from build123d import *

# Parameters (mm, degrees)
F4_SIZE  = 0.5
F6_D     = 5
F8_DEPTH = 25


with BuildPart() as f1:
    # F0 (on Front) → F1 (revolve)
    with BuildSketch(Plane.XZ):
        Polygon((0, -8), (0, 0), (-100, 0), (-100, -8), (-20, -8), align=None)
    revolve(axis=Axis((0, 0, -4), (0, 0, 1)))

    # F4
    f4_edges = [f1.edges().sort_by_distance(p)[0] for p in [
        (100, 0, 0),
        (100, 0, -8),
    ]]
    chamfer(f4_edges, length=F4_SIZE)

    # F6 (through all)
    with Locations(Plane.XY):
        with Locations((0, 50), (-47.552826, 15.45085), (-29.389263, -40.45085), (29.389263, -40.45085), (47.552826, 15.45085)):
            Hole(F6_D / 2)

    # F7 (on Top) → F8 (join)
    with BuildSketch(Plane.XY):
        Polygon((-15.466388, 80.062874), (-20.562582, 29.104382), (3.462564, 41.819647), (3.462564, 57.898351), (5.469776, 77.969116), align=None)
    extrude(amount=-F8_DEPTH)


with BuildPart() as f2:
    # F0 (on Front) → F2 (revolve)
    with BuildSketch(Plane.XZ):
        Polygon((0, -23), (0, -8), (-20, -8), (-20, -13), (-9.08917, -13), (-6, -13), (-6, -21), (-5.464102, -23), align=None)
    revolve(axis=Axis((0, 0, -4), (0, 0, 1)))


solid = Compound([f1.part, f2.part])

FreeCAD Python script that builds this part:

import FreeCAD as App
import Part
import Sketcher
from FreeCAD import Vector
Q = App.Units.Quantity


def edges_at(feature, points):
    """Names of the edges that pass closest to the given points."""
    edges = feature.Shape.Edges
    near = lambda p: min(range(len(edges)), key=lambda i: edges[i].distToShape(Part.Vertex(*p))[0])
    return sorted({f"Edge{near(p) + 1}" for p in points})

doc = App.newDocument("Part")
body = doc.addObject("PartDesign::Body", "Body")

# Sketch on XZ plane
sketch1 = doc.addObject("Sketcher::SketchObject", "Sketch")
body.addObject(sketch1)
sketch1.AttachmentSupport = (doc.XZ_Plane, [""])
sketch1.MapMode = "FlatFace"
sketch1.addGeometry(Part.LineSegment(Vector(0, -8, 0), Vector(0, 0, 0)), False)
sketch1.addGeometry(Part.LineSegment(Vector(0, 0, 0), Vector(-100, 0, 0)), False)
sketch1.addGeometry(Part.LineSegment(Vector(-100, 0, 0), Vector(-100, -8, 0)), False)
sketch1.addGeometry(Part.LineSegment(Vector(-100, -8, 0), Vector(0, -8, 0)), False)
sketch1.addConstraint(Sketcher.Constraint("Coincident", 0, 2, 1, 1))
sketch1.addConstraint(Sketcher.Constraint("Coincident", 1, 2, 2, 1))
sketch1.addConstraint(Sketcher.Constraint("Coincident", 2, 2, 3, 1))
sketch1.addConstraint(Sketcher.Constraint("Coincident", 3, 2, 0, 1))
sketch1.addConstraint(Sketcher.Constraint("Vertical", 0))
sketch1.addConstraint(Sketcher.Constraint("Horizontal", 1))
sketch1.addConstraint(Sketcher.Constraint("Vertical", 2))
sketch1.addConstraint(Sketcher.Constraint("Horizontal", 3))
sketch1.addConstraint(Sketcher.Constraint("Coincident", 0, 2, -1, 1))
sketch1.addConstraint(Sketcher.Constraint("DistanceX", 1, 2, 1, 1, 100.0))
sketch1.addConstraint(Sketcher.Constraint("DistanceY", 0, 1, 0, 2, 8.0))
revolution = doc.addObject("PartDesign::Revolution", "Revolution")
body.addObject(revolution)
revolution.Profile = sketch1
revolution.ReferenceAxis = (sketch1, ["V_Axis"])
revolution.Angle = 360
doc.recompute()

chamfer = doc.addObject("PartDesign::Chamfer", "Chamfer")
body.addObject(chamfer)
chamfer.Base = (revolution, edges_at(revolution, [(100, 0, 0), (100, 0, -8)]))
chamfer.Size = 0.5

# Sketch on XY plane
sketch2 = doc.addObject("Sketcher::SketchObject", "Sketch001")
body.addObject(sketch2)
sketch2.AttachmentSupport = (doc.XY_Plane, [""])
sketch2.MapMode = "FlatFace"
sketch2.addGeometry(Part.Circle(Vector(0, 50, 0), Vector(0, 0, 1), 2.5), False)
sketch2.addGeometry(Part.Circle(Vector(-47.552826, 15.45085, 0), Vector(0, 0, 1), 2.5), False)
sketch2.addGeometry(Part.Circle(Vector(-29.389263, -40.45085, 0), Vector(0, 0, 1), 2.5), False)
sketch2.addGeometry(Part.Circle(Vector(29.389263, -40.45085, 0), Vector(0, 0, 1), 2.5), False)
sketch2.addGeometry(Part.Circle(Vector(47.552826, 15.45085, 0), Vector(0, 0, 1), 2.5), False)
sketch2.addConstraint(Sketcher.Constraint("Equal", 0, 1))
sketch2.addConstraint(Sketcher.Constraint("Equal", 1, 2))
sketch2.addConstraint(Sketcher.Constraint("Equal", 2, 3))
sketch2.addConstraint(Sketcher.Constraint("Equal", 3, 4))
sketch2.addConstraint(Sketcher.Constraint("Symmetric", 2, 3, 3, 3, -2))
sketch2.addConstraint(Sketcher.Constraint("Symmetric", 1, 3, 4, 3, -2))
sketch2.addConstraint(Sketcher.Constraint("PointOnObject", 0, 3, -2))
sketch2.addConstraint(Sketcher.Constraint("Diameter", 0, 5.0))
sketch2.addConstraint(Sketcher.Constraint("DistanceY", -1, 1, 0, 3, 50.0))
sketch2.addConstraint(Sketcher.Constraint("DistanceY", 2, 3, 1, 3, 55.9017))
sketch2.addConstraint(Sketcher.Constraint("DistanceY", -1, 1, 1, 3, 15.45085))
sketch2.addConstraint(Sketcher.Constraint("DistanceX", 1, 3, 3, 3, 76.942089))
sketch2.addConstraint(Sketcher.Constraint("DistanceX", 1, 3, -1, 1, 47.552826))
doc.recompute()
hole = doc.addObject("PartDesign::Hole", "Hole")
body.addObject(hole)
hole.Profile = sketch2
hole.ThreadType = "None"
hole.Diameter = 5
hole.DepthType = "ThroughAll"

# Sketch on XY plane
sketch3 = doc.addObject("Sketcher::SketchObject", "Sketch002")
body.addObject(sketch3)
sketch3.AttachmentSupport = (doc.XY_Plane, [""])
sketch3.MapMode = "FlatFace"
sketch3.addGeometry(Part.LineSegment(Vector(-15.466388, 80.062874, 0), Vector(-20.562582, 29.104382, 0)), False)
sketch3.addGeometry(Part.LineSegment(Vector(-20.562582, 29.104382, 0), Vector(3.462564, 41.819647, 0)), False)
sketch3.addGeometry(Part.LineSegment(Vector(3.462564, 41.819647, 0), Vector(3.462564, 57.898351, 0)), False)
sketch3.addGeometry(Part.LineSegment(Vector(3.462564, 57.898351, 0), Vector(5.469776, 77.969116, 0)), False)
sketch3.addGeometry(Part.LineSegment(Vector(5.469776, 77.969116, 0), Vector(-15.466388, 80.062874, 0)), False)
sketch3.addConstraint(Sketcher.Constraint("Coincident", 0, 2, 1, 1))
sketch3.addConstraint(Sketcher.Constraint("Coincident", 1, 2, 2, 1))
sketch3.addConstraint(Sketcher.Constraint("Coincident", 2, 2, 3, 1))
sketch3.addConstraint(Sketcher.Constraint("Coincident", 3, 2, 4, 1))
sketch3.addConstraint(Sketcher.Constraint("Coincident", 4, 2, 0, 1))
sketch3.addConstraint(Sketcher.Constraint("Vertical", 2))
sketch3.addConstraint(Sketcher.Constraint("Parallel", 0, 3))
sketch3.addConstraint(Sketcher.Constraint("Perpendicular", 3, 4))
sketch3.addConstraint(Sketcher.Constraint("Distance", 4, 21.040599))
sketch3.addConstraint(Sketcher.Constraint("Distance", 1, 27.18245))
sketch3.addConstraint(Sketcher.Constraint("DistanceY", 2, 1, 2, 2, 16.078704))
sketch3.addConstraint(Sketcher.Constraint("DistanceX", 0, 2, -1, 1, 20.562582))
sketch3.addConstraint(Sketcher.Constraint("DistanceY", -1, 1, 2, 2, 57.898351))
sketch3.addConstraint(Sketcher.Constraint("DistanceY", 0, 2, 2, 2, 28.793969))
sketch3.addConstraint(Sketcher.Constraint("DistanceY", 1, 2, 3, 2, 36.149469))
pad1 = doc.addObject("PartDesign::Pad", "Pad")
body.addObject(pad1)
pad1.Profile = sketch3
pad1.Length = 25
pad1.Reversed = True
body2 = doc.addObject("PartDesign::Body", "Body001")

# Sketch on XZ plane
sketch4 = doc.addObject("Sketcher::SketchObject", "Sketch003")
body2.addObject(sketch4)
sketch4.AttachmentSupport = (doc.getObject("XZ_Plane001"), [""])
sketch4.MapMode = "FlatFace"
sketch4.addGeometry(Part.LineSegment(Vector(0, -23, 0), Vector(0, -8, 0)), False)
sketch4.addGeometry(Part.LineSegment(Vector(0, -8, 0), Vector(-20, -8, 0)), False)
sketch4.addGeometry(Part.LineSegment(Vector(-20, -8, 0), Vector(-20, -13, 0)), False)
sketch4.addGeometry(Part.LineSegment(Vector(-20, -13, 0), Vector(-6, -13, 0)), False)
sketch4.addGeometry(Part.LineSegment(Vector(-6, -13, 0), Vector(-6, -21, 0)), False)
sketch4.addGeometry(Part.LineSegment(Vector(-6, -21, 0), Vector(-5.464102, -23, 0)), False)
sketch4.addGeometry(Part.LineSegment(Vector(-5.464102, -23, 0), Vector(0, -23, 0)), False)
sketch4.addConstraint(Sketcher.Constraint("Coincident", 0, 2, 1, 1))
sketch4.addConstraint(Sketcher.Constraint("Coincident", 1, 2, 2, 1))
sketch4.addConstraint(Sketcher.Constraint("Coincident", 2, 2, 3, 1))
sketch4.addConstraint(Sketcher.Constraint("Coincident", 3, 2, 4, 1))
sketch4.addConstraint(Sketcher.Constraint("Coincident", 4, 2, 5, 1))
sketch4.addConstraint(Sketcher.Constraint("Coincident", 5, 2, 6, 1))
sketch4.addConstraint(Sketcher.Constraint("Coincident", 6, 2, 0, 1))
sketch4.addConstraint(Sketcher.Constraint("Vertical", 0))
sketch4.addConstraint(Sketcher.Constraint("Horizontal", 1))
sketch4.addConstraint(Sketcher.Constraint("Vertical", 2))
sketch4.addConstraint(Sketcher.Constraint("Horizontal", 3))
sketch4.addConstraint(Sketcher.Constraint("Vertical", 4))
sketch4.addConstraint(Sketcher.Constraint("Horizontal", 6))
sketch4.addConstraint(Sketcher.Constraint("PointOnObject", 0, 2, -2))
sketch4.addConstraint(Sketcher.Constraint("DistanceX", 1, 2, 1, 1, 20.0))
sketch4.addConstraint(Sketcher.Constraint("DistanceX", 3, 1, 3, 2, 14.0))
sketch4.addConstraint(Sketcher.Constraint("DistanceY", 0, 1, 0, 2, 15.0))
sketch4.addConstraint(Sketcher.Constraint("DistanceY", 2, 2, 2, 1, 5.0))
sketch4.addConstraint(Sketcher.Constraint("DistanceY", 4, 2, 4, 1, 8.0))
sketch4.addConstraint(Sketcher.Constraint("Angle", 5, Q("-75.00001 deg")))
sketch4.addConstraint(Sketcher.Constraint("DistanceY", 0, 2, -1, 1, 8.0))
revolution2 = doc.addObject("PartDesign::Revolution", "Revolution001")
body2.addObject(revolution2)
revolution2.Profile = sketch4
revolution2.ReferenceAxis = (sketch4, ["V_Axis"])
revolution2.Angle = 360

doc.recompute()
